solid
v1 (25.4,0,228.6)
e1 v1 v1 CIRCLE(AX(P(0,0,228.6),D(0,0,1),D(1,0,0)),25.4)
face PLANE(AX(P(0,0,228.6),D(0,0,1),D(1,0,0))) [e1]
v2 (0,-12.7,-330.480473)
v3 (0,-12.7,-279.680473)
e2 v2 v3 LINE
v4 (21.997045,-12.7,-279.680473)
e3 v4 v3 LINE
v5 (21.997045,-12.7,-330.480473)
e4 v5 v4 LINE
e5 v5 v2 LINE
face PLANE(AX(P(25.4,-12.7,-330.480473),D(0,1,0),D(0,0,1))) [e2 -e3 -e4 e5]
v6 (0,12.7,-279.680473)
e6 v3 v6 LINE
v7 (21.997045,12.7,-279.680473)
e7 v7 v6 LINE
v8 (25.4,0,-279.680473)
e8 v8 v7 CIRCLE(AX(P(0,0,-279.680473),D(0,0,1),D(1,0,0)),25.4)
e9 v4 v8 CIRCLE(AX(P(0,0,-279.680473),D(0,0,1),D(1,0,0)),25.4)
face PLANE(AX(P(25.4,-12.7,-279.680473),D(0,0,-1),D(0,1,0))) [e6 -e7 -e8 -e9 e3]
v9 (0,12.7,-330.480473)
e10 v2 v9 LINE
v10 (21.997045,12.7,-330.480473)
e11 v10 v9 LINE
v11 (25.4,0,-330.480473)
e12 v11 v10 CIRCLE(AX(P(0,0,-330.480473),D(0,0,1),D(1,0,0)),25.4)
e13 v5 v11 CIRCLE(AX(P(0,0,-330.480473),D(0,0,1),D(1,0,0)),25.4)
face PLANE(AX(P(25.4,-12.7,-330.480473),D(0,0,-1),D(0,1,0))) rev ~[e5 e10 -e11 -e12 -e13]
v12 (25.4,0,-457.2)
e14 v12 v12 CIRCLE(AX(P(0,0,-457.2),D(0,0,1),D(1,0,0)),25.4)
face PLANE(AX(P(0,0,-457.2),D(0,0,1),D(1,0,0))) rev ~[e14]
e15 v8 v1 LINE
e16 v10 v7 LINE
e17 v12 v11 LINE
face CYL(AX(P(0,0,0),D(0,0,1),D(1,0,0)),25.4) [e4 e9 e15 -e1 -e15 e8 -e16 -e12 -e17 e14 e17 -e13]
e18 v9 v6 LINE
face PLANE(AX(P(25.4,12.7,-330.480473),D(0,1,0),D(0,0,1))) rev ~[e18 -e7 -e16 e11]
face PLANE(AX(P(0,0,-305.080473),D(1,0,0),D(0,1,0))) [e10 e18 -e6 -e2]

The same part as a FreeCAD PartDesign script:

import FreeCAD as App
import Part
import Sketcher
from FreeCAD import Vector
Q = App.Units.Quantity


def add_polygon(sketch, points):
    """Adds a closed chain of lines whose ends are joined by coincident constraints."""
    first, n = sketch.GeometryCount, len(points)
    for a, b in zip(points, points[1:] + points[:1]):
        sketch.addGeometry(Part.LineSegment(App.Vector(*a, 0), App.Vector(*b, 0)), False)
    for i in range(n):
        sketch.addConstraint(Sketcher.Constraint("Coincident", first + i, 2, first + (i + 1) % n, 1))

doc = App.newDocument("Part")
body = doc.addObject("PartDesign::Body", "Body")

# Sketch on XY plane
sketch1 = body.newObject("Sketcher::SketchObject", "Sketch")
sketch1.AttachmentSupport = (doc.getObject("XY_Plane"), [""])
sketch1.MapMode = "FlatFace"
sketch1.addGeometry(Part.Circle(Vector(0, 0, 0), Vector(0, 0, 1), 25), False)
sketch1.addConstraint([
    Sketcher.Constraint("Coincident", 0, 3, -1, 1),
    Sketcher.Constraint("Diameter", 0, Q("2 in")),
])
pad1 = body.newObject("PartDesign::Pad", "Pad")
pad1.Profile = sketch1
pad1.Length = Q("9 in")

# Sketch on XY plane
sketch2 = body.newObject("Sketcher::SketchObject", "Sketch001")
sketch2.AttachmentSupport = (doc.getObject("XY_Plane"), [""])
sketch2.MapMode = "FlatFace"
sketch2.addGeometry(Part.Circle(Vector(0, 0, 0), Vector(0, 0, 1), 25), False)
sketch2.addConstraint([
    Sketcher.Constraint("Coincident", 0, 3, -1, 1),
    Sketcher.Constraint("Diameter", 0, Q("2 in")),
])
pad2 = body.newObject("PartDesign::Pad", "Pad001")
pad2.Profile = sketch2
pad2.Length = Q("18 in")
pad2.Reversed = True

# Sketch on YZ plane
sketch3 = body.newObject("Sketcher::SketchObject", "Sketch002")
sketch3.AttachmentSupport = (doc.getObject("YZ_Plane"), [""])
sketch3.MapMode = "FlatFace"
sketch3.AttachmentOffset = App.Placement(Vector(0, 0, 1 * 25.4), App.Rotation())
add_polygon(sketch3, [(-13, -280), (-13, -330), (13, -330), (13, -280)])  # lines 0-3
sketch3.addConstraint([
    Sketcher.Constraint("Vertical", 0),
    Sketcher.Constraint("Horizontal", 1),
    Sketcher.Constraint("Vertical", 2),
    Sketcher.Constraint("Horizontal", 3),
    Sketcher.Constraint("DistanceX", 1, 1, 1, 2, Q("1 in")),
    Sketcher.Constraint("DistanceY", 0, 2, 0, 1, Q("2 in")),
    Sketcher.Constraint("DistanceX", 0, 2, -1, 1, Q("0.5 in")),
    Sketcher.Constraint("DistanceY", 0, 2, -1, 1, 330.480473),
])
pocket1 = body.newObject("PartDesign::Pocket", "Pocket")
pocket1.Profile = sketch3
pocket1.Length = Q("1 in")

doc.recompute()
